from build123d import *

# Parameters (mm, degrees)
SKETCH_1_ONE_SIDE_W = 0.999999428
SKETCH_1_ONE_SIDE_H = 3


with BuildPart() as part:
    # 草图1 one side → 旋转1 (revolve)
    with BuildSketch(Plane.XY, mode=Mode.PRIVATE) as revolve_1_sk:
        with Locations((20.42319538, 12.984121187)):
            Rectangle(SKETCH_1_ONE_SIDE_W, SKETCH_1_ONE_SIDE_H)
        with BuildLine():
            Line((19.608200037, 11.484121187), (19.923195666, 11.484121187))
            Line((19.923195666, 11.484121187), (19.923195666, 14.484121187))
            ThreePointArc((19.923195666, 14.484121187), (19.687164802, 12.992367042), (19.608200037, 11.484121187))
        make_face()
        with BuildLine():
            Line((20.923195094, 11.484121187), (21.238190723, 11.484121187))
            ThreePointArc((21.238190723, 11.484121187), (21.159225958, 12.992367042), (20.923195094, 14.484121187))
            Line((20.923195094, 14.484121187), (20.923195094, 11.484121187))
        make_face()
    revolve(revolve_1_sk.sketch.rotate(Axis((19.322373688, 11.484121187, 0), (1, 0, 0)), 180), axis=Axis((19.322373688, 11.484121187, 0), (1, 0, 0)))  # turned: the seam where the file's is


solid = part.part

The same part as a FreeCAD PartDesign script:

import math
import FreeCAD as App
import Part
import Sketcher

V = App.Vector
Q = App.Units.Quantity

doc = App.newDocument("Part")
body = doc.addObject("PartDesign::Body", "Body")

# Sketch on XY plane
sketch1 = doc.addObject("Sketcher::SketchObject", "Sketch")
body.addObject(sketch1)
sketch1.AttachmentSupport = (doc.XY_Plane, [""])
sketch1.MapMode = "FlatFace"
sketch1.addGeometry([
    Part.LineSegment(V(20.9, 14.5, 0), V(19.9, 14.5, 0)),
    Part.ArcOfCircle(Part.Circle(V(34.1, 11.5, 0), V(0, 0, 1), 14.4), math.radians(168.01), math.radians(180)),
    Part.LineSegment(V(19.6, 11.5, 0), V(21.2, 11.5, 0)),
    Part.ArcOfCircle(Part.Circle(V(6.8, 11.5, 0), V(0, 0, 1), 14.4), math.radians(0), math.radians(11.99)),
], False)
sketch1.addGeometry(Part.LineSegment(V(6.8, 11.5, 0), V(34.1, 11.5, 0)), True)  # axis
sketch1.addConstraint([
    Sketcher.Constraint("Coincident", 0, 2, 1, 1),
    Sketcher.Constraint("Coincident", 1, 2, 2, 1),
    Sketcher.Constraint("Coincident", 2, 2, 3, 1),
    Sketcher.Constraint("Coincident", 3, 2, 0, 1),
    Sketcher.Constraint("Horizontal", 0),
    Sketcher.Constraint("Horizontal", 2),
    Sketcher.Constraint("Horizontal", 4),
    Sketcher.Constraint("Coincident", 4, 1, 3, 3),
    Sketcher.Constraint("Coincident", 4, 2, 1, 3),
    Sketcher.Constraint("Equal", 1, 3),
    Sketcher.Constraint("Horizontal", 3, 3, 1, 2),
    Sketcher.Constraint("DistanceX", 0, 2, 0, 1, Q("0.999999 mm")),
    Sketcher.Constraint("DistanceY", 3, 3, 0, 2, Q("3 mm")),
    Sketcher.Constraint("Radius", 1, Q("14.44341 mm")),
    Sketcher.Constraint("DistanceX", -1, 1, 1, 2, Q("19.6082 mm")),
    Sketcher.Constraint("DistanceY", -1, 1, 1, 3, Q("11.484121 mm")),
])
revolution = doc.addObject("PartDesign::Revolution", "Revolution")
body.addObject(revolution)
revolution.Profile = sketch1
revolution.ReferenceAxis = (sketch1, ["Axis0"])
revolution.Angle = 360

doc.recompute()
